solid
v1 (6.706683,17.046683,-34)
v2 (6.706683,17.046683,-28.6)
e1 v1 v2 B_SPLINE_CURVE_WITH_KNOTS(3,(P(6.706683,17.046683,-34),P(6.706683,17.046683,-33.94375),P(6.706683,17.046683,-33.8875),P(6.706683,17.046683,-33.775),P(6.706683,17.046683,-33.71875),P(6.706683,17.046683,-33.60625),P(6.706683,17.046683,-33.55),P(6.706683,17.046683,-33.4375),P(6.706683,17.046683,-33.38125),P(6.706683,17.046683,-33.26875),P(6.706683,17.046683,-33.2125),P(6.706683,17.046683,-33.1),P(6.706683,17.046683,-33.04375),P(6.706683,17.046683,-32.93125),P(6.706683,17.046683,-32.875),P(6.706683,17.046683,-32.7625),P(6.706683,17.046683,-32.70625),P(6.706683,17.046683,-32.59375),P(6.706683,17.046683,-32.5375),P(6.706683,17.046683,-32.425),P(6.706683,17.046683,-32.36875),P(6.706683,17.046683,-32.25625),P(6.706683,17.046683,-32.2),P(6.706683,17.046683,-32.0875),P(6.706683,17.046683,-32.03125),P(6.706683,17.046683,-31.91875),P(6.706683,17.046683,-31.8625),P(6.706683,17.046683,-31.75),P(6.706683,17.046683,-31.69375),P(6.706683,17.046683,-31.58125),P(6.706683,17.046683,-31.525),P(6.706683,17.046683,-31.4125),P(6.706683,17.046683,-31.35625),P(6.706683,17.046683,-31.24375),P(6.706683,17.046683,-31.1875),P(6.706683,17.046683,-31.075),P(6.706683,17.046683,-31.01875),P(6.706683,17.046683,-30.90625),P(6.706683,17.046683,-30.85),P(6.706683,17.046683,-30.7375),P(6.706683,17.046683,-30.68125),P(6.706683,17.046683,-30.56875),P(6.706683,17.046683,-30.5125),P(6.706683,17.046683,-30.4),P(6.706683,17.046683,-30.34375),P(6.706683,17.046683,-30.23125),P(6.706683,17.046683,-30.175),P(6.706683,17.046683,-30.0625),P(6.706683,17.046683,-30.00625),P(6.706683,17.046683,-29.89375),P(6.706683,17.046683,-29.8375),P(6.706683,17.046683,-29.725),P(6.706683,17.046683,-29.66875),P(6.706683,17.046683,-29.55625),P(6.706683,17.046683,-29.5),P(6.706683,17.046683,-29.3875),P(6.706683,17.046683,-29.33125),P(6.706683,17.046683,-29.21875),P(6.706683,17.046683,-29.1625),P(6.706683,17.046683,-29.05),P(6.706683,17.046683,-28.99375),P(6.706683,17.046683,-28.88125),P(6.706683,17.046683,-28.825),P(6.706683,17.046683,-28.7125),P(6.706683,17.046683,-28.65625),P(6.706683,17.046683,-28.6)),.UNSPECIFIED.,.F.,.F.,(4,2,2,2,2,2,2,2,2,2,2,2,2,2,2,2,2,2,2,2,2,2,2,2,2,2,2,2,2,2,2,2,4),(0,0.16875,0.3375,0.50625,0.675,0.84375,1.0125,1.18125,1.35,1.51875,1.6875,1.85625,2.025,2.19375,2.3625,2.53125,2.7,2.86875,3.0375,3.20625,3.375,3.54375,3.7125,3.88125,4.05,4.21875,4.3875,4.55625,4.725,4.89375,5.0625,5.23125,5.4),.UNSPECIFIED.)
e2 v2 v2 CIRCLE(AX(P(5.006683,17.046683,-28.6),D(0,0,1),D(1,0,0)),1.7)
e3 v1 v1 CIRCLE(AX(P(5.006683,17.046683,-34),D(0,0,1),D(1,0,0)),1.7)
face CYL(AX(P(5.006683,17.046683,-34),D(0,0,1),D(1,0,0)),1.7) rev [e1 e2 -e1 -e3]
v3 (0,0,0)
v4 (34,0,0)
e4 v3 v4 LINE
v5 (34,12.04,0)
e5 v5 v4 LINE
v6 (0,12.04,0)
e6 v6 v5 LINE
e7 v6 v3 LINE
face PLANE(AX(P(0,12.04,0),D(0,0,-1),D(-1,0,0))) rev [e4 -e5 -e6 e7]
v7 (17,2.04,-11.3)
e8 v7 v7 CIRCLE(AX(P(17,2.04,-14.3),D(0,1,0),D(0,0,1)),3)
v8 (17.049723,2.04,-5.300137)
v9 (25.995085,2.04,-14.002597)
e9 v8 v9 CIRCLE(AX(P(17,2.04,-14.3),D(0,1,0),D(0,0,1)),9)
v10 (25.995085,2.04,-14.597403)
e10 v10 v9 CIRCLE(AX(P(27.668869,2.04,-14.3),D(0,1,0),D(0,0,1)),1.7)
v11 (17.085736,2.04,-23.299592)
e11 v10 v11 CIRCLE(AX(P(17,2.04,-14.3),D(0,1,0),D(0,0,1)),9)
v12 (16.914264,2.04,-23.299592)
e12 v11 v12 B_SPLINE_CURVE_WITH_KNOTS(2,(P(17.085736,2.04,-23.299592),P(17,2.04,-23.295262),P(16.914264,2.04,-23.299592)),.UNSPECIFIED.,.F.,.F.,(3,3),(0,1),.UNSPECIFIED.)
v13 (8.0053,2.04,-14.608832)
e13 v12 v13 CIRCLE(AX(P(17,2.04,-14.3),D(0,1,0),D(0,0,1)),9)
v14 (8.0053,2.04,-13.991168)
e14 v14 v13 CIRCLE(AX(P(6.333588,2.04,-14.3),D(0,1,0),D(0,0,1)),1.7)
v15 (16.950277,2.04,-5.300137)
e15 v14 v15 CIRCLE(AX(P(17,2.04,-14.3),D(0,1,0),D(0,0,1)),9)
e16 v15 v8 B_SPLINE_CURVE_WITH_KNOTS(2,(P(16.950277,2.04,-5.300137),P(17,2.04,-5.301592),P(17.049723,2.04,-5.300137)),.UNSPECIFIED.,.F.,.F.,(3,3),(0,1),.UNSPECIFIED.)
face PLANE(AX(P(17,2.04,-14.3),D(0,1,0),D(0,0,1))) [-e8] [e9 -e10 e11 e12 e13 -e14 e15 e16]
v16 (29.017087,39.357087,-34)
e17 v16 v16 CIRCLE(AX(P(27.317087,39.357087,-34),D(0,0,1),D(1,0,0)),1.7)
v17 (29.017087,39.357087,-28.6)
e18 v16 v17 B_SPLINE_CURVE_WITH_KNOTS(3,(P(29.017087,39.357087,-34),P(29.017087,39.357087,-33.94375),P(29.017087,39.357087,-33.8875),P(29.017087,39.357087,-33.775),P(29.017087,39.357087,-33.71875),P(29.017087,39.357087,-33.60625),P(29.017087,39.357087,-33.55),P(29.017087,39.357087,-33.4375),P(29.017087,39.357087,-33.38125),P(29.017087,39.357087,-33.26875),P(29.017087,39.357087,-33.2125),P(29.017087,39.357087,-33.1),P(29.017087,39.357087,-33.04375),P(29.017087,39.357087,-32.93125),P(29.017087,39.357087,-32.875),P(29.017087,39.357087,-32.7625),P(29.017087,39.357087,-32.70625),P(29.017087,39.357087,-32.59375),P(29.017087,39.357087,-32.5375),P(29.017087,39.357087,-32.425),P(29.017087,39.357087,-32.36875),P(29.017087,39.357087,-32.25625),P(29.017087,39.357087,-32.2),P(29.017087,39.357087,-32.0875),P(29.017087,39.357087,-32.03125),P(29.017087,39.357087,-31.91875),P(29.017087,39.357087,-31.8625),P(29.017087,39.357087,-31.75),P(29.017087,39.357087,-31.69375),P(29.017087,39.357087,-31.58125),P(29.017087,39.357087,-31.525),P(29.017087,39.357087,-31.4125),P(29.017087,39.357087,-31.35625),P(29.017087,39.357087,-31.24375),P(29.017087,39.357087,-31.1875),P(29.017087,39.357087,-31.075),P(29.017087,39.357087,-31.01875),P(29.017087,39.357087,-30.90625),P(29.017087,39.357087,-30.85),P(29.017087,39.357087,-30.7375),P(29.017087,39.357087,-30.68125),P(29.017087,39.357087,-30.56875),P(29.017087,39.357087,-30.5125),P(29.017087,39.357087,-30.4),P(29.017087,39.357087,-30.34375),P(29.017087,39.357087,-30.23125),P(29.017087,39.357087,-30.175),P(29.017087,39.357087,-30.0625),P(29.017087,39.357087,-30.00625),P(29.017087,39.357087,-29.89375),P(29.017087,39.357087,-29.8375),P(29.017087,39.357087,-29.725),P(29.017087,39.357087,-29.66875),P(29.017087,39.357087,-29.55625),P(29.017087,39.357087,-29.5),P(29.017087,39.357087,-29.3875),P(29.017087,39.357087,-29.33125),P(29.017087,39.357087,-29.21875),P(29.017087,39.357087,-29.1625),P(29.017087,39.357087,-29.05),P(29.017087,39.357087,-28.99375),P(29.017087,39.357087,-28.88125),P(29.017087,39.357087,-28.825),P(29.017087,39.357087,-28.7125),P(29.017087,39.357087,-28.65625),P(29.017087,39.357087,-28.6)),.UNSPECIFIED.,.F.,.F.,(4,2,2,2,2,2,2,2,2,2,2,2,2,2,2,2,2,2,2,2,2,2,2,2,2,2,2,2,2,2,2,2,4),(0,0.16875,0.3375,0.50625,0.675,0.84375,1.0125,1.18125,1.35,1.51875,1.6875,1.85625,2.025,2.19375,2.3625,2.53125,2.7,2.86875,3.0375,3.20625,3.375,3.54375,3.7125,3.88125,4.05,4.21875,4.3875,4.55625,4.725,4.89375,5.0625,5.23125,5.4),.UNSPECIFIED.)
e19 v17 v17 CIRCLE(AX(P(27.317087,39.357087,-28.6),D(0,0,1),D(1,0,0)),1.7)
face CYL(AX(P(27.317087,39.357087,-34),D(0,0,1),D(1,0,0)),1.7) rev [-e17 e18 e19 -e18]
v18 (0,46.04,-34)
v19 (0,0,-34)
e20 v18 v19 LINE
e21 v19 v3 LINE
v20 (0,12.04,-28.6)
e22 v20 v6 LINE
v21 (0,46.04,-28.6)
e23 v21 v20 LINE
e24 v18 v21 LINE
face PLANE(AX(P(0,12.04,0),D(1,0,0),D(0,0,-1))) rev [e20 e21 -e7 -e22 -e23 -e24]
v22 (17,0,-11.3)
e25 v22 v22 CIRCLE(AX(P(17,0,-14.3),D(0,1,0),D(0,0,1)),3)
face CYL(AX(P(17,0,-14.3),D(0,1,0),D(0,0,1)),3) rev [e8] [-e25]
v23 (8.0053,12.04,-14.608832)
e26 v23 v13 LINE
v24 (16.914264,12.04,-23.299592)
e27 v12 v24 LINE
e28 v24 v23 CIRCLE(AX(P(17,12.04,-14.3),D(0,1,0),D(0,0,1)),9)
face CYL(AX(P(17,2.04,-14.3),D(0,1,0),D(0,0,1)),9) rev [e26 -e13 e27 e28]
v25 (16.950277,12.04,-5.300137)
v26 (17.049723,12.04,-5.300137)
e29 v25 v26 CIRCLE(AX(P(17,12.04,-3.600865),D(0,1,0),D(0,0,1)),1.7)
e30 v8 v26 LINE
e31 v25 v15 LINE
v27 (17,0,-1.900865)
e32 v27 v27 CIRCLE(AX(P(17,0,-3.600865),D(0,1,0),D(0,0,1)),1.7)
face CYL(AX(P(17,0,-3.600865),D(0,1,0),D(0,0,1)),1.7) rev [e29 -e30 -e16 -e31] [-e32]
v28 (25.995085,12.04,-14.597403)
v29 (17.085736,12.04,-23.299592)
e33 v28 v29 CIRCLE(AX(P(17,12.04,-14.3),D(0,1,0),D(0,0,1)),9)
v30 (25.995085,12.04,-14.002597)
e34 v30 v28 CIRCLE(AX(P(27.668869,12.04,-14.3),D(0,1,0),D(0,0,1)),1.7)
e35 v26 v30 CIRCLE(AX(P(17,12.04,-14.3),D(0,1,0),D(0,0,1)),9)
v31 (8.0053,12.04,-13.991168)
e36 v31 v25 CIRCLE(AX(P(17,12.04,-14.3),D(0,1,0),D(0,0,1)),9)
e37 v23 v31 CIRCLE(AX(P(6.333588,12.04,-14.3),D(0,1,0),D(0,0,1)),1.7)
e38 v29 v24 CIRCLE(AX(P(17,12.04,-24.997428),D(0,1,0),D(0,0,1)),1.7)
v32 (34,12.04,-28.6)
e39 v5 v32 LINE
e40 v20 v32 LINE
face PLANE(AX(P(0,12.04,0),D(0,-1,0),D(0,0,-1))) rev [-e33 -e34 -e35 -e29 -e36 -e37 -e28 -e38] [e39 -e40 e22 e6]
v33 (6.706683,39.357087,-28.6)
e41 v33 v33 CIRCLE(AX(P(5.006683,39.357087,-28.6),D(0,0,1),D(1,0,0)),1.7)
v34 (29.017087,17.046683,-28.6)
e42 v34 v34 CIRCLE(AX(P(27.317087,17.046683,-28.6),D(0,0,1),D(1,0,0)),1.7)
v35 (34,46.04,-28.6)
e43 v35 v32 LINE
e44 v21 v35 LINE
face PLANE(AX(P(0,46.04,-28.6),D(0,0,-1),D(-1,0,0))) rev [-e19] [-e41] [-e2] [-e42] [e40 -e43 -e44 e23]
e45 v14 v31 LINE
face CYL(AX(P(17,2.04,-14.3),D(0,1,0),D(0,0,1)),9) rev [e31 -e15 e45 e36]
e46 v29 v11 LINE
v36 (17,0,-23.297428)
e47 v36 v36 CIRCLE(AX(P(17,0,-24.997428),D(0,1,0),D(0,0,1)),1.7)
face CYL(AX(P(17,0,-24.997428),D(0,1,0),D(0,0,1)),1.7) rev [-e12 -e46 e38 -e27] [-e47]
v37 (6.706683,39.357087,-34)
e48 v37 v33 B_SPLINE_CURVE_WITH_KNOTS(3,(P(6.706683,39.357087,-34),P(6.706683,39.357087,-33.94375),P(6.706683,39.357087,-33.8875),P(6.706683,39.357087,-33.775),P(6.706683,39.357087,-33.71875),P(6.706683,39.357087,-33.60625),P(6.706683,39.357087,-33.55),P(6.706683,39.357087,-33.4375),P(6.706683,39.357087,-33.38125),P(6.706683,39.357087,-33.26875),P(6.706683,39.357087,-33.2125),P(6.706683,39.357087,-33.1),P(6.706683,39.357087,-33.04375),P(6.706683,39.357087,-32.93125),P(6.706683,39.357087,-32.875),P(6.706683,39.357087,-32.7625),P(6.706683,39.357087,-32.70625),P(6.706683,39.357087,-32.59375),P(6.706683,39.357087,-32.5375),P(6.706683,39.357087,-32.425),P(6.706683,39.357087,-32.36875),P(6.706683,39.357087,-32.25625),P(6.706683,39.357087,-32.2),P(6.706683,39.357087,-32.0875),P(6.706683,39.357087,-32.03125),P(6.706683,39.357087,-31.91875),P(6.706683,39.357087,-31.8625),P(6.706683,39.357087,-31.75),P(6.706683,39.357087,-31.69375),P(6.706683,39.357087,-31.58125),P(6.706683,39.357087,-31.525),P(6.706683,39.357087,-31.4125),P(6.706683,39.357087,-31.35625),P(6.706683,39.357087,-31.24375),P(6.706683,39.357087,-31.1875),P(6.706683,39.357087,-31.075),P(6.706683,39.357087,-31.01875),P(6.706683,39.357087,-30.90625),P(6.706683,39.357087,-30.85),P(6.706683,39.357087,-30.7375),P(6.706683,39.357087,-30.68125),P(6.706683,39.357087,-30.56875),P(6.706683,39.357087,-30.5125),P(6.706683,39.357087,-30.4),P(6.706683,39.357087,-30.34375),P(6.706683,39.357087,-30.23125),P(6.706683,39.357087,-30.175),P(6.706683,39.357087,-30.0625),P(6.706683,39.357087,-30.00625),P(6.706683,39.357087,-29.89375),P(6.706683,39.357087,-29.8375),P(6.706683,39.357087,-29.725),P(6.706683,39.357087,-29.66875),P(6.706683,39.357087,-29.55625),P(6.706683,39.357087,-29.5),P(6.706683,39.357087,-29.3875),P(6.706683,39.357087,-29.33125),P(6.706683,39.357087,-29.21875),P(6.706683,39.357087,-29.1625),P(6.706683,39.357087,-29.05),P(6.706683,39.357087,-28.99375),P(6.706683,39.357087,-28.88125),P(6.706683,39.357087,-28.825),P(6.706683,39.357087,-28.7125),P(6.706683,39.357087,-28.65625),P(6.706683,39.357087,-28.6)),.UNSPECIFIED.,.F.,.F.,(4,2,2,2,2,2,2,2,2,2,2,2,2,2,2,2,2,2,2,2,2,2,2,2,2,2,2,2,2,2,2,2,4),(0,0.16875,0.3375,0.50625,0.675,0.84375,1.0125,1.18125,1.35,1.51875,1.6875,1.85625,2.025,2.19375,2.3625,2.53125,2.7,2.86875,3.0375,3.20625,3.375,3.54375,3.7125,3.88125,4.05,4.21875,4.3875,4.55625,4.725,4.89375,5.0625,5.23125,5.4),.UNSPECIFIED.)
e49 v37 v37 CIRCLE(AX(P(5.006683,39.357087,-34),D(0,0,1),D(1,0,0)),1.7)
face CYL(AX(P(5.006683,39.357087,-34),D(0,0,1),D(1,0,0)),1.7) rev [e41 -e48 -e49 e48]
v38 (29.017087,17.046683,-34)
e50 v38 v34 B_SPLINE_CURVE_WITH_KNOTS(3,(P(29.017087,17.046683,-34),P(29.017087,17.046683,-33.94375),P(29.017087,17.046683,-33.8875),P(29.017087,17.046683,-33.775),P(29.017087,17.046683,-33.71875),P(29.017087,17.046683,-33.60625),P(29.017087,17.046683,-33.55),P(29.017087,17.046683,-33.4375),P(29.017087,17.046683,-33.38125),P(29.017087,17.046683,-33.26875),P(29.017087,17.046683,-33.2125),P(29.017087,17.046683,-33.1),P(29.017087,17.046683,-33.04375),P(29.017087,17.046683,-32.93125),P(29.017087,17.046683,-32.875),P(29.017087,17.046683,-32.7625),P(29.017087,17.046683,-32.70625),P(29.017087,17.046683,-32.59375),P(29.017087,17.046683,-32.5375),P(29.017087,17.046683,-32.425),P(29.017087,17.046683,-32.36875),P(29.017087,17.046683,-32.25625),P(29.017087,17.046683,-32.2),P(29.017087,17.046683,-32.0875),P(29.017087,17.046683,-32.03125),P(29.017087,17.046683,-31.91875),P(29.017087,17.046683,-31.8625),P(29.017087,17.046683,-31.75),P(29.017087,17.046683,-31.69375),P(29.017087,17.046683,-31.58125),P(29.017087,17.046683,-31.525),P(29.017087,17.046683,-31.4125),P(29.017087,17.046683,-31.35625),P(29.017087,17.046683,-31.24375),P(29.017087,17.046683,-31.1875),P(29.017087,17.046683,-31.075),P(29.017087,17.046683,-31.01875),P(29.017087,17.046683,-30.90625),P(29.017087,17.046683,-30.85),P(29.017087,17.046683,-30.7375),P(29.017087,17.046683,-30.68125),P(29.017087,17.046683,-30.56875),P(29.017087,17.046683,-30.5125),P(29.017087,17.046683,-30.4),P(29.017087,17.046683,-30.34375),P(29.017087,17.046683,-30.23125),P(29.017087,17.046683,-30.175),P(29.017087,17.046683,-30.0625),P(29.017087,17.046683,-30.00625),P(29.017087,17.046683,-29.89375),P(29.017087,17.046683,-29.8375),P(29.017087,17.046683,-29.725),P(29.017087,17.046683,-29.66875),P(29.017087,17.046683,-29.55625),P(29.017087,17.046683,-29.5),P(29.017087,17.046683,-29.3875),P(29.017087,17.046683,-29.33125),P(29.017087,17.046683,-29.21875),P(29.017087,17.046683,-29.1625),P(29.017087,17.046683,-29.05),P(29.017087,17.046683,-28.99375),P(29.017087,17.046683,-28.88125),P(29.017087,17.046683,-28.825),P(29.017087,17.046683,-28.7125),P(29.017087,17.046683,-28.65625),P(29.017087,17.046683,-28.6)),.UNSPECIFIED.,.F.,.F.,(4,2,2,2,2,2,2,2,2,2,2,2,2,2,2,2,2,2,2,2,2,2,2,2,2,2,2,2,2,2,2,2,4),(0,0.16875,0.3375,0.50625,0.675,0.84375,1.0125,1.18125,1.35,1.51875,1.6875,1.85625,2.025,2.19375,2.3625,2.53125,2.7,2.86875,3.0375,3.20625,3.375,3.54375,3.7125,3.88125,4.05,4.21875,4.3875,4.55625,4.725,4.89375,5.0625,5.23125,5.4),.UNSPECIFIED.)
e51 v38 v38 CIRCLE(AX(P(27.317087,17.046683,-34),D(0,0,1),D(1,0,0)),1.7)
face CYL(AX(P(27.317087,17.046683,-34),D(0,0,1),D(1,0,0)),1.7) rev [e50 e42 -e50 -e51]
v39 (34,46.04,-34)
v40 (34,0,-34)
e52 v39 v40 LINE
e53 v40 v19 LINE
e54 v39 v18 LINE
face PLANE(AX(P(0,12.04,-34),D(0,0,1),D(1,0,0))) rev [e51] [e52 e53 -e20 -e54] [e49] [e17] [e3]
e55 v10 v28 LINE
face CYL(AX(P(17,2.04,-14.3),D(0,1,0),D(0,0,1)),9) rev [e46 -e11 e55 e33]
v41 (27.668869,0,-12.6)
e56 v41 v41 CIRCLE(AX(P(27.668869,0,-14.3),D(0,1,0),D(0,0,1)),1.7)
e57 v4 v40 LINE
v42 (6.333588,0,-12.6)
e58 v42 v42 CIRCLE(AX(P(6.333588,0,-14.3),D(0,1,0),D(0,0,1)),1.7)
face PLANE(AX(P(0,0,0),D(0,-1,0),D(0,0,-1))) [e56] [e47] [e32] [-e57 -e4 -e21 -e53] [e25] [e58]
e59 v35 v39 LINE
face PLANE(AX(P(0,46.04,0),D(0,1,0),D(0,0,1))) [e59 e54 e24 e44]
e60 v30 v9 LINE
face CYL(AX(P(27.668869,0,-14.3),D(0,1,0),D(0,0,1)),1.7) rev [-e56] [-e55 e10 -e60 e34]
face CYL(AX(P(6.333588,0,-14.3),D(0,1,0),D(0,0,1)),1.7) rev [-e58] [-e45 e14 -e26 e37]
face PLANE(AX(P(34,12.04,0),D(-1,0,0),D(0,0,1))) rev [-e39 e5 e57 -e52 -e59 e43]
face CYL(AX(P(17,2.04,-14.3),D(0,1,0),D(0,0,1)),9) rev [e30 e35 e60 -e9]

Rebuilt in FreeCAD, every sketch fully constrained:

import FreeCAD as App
import Part
import Sketcher


def add_polygon(sketch, points):
    """Adds a closed chain of lines whose ends are joined by coincident constraints."""
    first, n = sketch.GeometryCount, len(points)
    for a, b in zip(points, points[1:] + points[:1]):
        sketch.addGeometry(Part.LineSegment(App.Vector(*a, 0), App.Vector(*b, 0)), False)
    for i in range(n):
        sketch.addConstraint(Sketcher.Constraint("Coincident", first + i, 2, first + (i + 1) % n, 1))

doc = App.newDocument("Part")
params = doc.addObject("Spreadsheet::Sheet", "Params")
for row, (alias, value) in enumerate([
    ("sketch1_width", "34 mm"),
    ("pad1_length", "12.04 mm"),
    ("sketch2_width", "34 mm"),
    ("sketch2_height", "5.4 mm"),
    ("pad2_length", "34 mm"),
    ("sketch3_diameter", "18 mm"),
    ("pocket1_length", "10 mm"),
    ("sketch4_diameter", "3.4 mm"),
    ("sketch5_diameter", "6 mm"),
    ("sketch6_diameter", "3.4 mm"),
], start=1):
    params.set(f"A{row}", alias)
    params.set(f"B{row}", "=" + value)
    params.setAlias(f"B{row}", alias)

body = doc.addObject("PartDesign::Body", "Body")

# Sketch on XZ plane
sketch1 = body.newObject("Sketcher::SketchObject", "Sketch")
sketch1.AttachmentSupport = (doc.getObject("XZ_Plane"), [""])
sketch1.MapMode = "FlatFace"
add_polygon(sketch1, [(0, -34), (0, 0), (34, 0), (34, -34)])  # lines 0-3
sketch1.addConstraint([
    Sketcher.Constraint("Vertical", 0),
    Sketcher.Constraint("Horizontal", 1),
    Sketcher.Constraint("Vertical", 2),
    Sketcher.Constraint("Horizontal", 3),
    Sketcher.Constraint("Coincident", 0, 2, -1, 1),
    Sketcher.Constraint("Equal", 3, 0),
    Sketcher.Constraint("DistanceX", 1, 1, 1, 2, 34.0),
])
sketch1.setExpression("Constraints[10]", "Params.sketch1_width")
pad1 = body.newObject("PartDesign::Pad", "Pad")
pad1.Profile = sketch1
pad1.setExpression("Length", "Params.pad1_length")
pad1.Reversed = True

# Sketch on XZ plane
sketch2 = body.newObject("Sketcher::SketchObject", "Sketch001")
sketch2.AttachmentSupport = (doc.getObject("XZ_Plane"), [""])
sketch2.MapMode = "FlatFace"
sketch2.AttachmentOffset = App.Placement(App.Vector(0, 0, -12.04), App.Rotation())
add_polygon(sketch2, [(0, -34), (0, -28.6), (34, -28.6), (34, -34)])  # lines 0-3
sketch2.addConstraint([
    Sketcher.Constraint("Vertical", 0),
    Sketcher.Constraint("Horizontal", 1),
    Sketcher.Constraint("Vertical", 2),
    Sketcher.Constraint("Horizontal", 3),
    Sketcher.Constraint("PointOnObject", 0, 2, -2),
    Sketcher.Constraint("DistanceX", 1, 1, 1, 2, 34.0),
    Sketcher.Constraint("DistanceY", 0, 1, 0, 2, 5.4),
    Sketcher.Constraint("DistanceY", 2, 2, -1, 1, 34.0),
])
sketch2.setExpression("Constraints[9]", "Params.sketch2_width")
sketch2.setExpression("Constraints[10]", "Params.sketch2_height")
pad2 = body.newObject("PartDesign::Pad", "Pad001")
pad2.Profile = sketch2
pad2.setExpression("Length", "Params.pad2_length")
pad2.Reversed = True

# Sketch on XZ plane
sketch3 = body.newObject("Sketcher::SketchObject", "Sketch002")
sketch3.AttachmentSupport = (doc.getObject("XZ_Plane"), [""])
sketch3.MapMode = "FlatFace"
sketch3.AttachmentOffset = App.Placement(App.Vector(0, 0, -12.04), App.Rotation())
sketch3.addGeometry(Part.Circle(App.Vector(17, -14.3, 0), App.Vector(0, 0, 1), 9), False)
sketch3.addConstraint([
    Sketcher.Constraint("Diameter", 0, 18.0),
    Sketcher.Constraint("DistanceX", -1, 1, 0, 3, 17.0),
    Sketcher.Constraint("DistanceY", 0, 3, -1, 1, 14.3),
])
sketch3.setExpression("Constraints[0]", "Params.sketch3_diameter")
pocket1 = body.newObject("PartDesign::Pocket", "Pocket")
pocket1.Profile = sketch3
pocket1.setExpression("Length", "Params.pocket1_length")
pocket1.Reversed = True

# Sketch on XZ plane
sketch4 = body.newObject("Sketcher::SketchObject", "Sketch003")
sketch4.AttachmentSupport = (doc.getObject("XZ_Plane"), [""])
sketch4.MapMode = "FlatFace"
sketch4.AttachmentOffset = App.Placement(App.Vector(0, 0, -12.04), App.Rotation())
sketch4.addGeometry([
    Part.Circle(App.Vector(6.333588, -14.3, 0), App.Vector(0, 0, 1), 1.7),
    Part.Circle(App.Vector(27.668869, -14.3, 0), App.Vector(0, 0, 1), 1.7),
    Part.Circle(App.Vector(17, -3.600865, 0), App.Vector(0, 0, 1), 1.7),
    Part.Circle(App.Vector(17, -24.997428, 0), App.Vector(0, 0, 1), 1.7),
], False)
sketch4.addConstraint([
    Sketcher.Constraint("Equal", 0, 1),
    Sketcher.Constraint("Equal", 1, 2),
    Sketcher.Constraint("Equal", 2, 3),
    Sketcher.Constraint("Horizontal", 0, 3, 1, 3),
    Sketcher.Constraint("Vertical", 2, 3, 3, 3),
    Sketcher.Constraint("Diameter", 0, 3.4),
    Sketcher.Constraint("DistanceX", -1, 1, 2, 3, 17.0),
    Sketcher.Constraint("DistanceY", 0, 3, -1, 1, 14.3),
    Sketcher.Constraint("DistanceX", -1, 1, 1, 3, 27.668869),
    Sketcher.Constraint("DistanceY", 3, 3, -1, 1, 24.997428),
    Sketcher.Constraint("DistanceX", 0, 3, 1, 3, 21.335281),
    Sketcher.Constraint("DistanceY", 2, 3, -1, 1, 3.600865),
])
sketch4.setExpression("Constraints[5]", "Params.sketch4_diameter")
pocket2 = body.newObject("PartDesign::Pocket", "Pocket001")
pocket2.Profile = sketch4
pocket2.Type = "ThroughAll"
pocket2.Reversed = True

# Sketch on XZ plane
sketch5 = body.newObject("Sketcher::SketchObject", "Sketch004")
sketch5.AttachmentSupport = (doc.getObject("XZ_Plane"), [""])
sketch5.MapMode = "FlatFace"
sketch5.AttachmentOffset = App.Placement(App.Vector(0, 0, -2.04), App.Rotation())
sketch5.addGeometry(Part.Circle(App.Vector(17, -14.3, 0), App.Vector(0, 0, 1), 3), False)
sketch5.addConstraint([
    Sketcher.Constraint("Diameter", 0, 6.0),
    Sketcher.Constraint("DistanceX", -1, 1, 0, 3, 17.0),
    Sketcher.Constraint("DistanceY", 0, 3, -1, 1, 14.3),
])
sketch5.setExpression("Constraints[0]", "Params.sketch5_diameter")
pocket3 = body.newObject("PartDesign::Pocket", "Pocket002")
pocket3.Profile = sketch5
pocket3.Type = "ThroughAll"
pocket3.Reversed = True

# Sketch on XY plane
sketch6 = body.newObject("Sketcher::SketchObject", "Sketch005")
sketch6.AttachmentSupport = (doc.getObject("XY_Plane"), [""])
sketch6.MapMode = "FlatFace"
sketch6.AttachmentOffset = App.Placement(App.Vector(0, 0, -28.6), App.Rotation())
sketch6.addGeometry([
    Part.Circle(App.Vector(5.006683, 39.357087, 0), App.Vector(0, 0, 1), 1.7),
    Part.Circle(App.Vector(27.317087, 39.357087, 0), App.Vector(0, 0, 1), 1.7),
    Part.Circle(App.Vector(5.006683, 17.046683, 0), App.Vector(0, 0, 1), 1.7),
    Part.Circle(App.Vector(27.317087, 17.046683, 0), App.Vector(0, 0, 1), 1.7),
], False)
sketch6.addConstraint([
    Sketcher.Constraint("Equal", 0, 1),
    Sketcher.Constraint("Equal", 1, 2),
    Sketcher.Constraint("Equal", 2, 3),
    Sketcher.Constraint("Horizontal", 0, 3, 1, 3),
    Sketcher.Constraint("Horizontal", 2, 3, 3, 3),
    Sketcher.Constraint("Vertical", 0, 3, 2, 3),
    Sketcher.Constraint("Vertical", 1, 3, 3, 3),
    Sketcher.Constraint("Diameter", 0, 3.4),
    Sketcher.Constraint("DistanceX", -1, 1, 0, 3, 5.006683),
    Sketcher.Constraint("DistanceY", -1, 1, 0, 3, 39.357087),
    Sketcher.Constraint("DistanceX", -1, 1, 1, 3, 27.317087),
    Sketcher.Constraint("DistanceY", -1, 1, 2, 3, 17.046683),
])
sketch6.setExpression("Constraints[7]", "Params.sketch6_diameter")
pocket4 = body.newObject("PartDesign::Pocket", "Pocket003")
pocket4.Profile = sketch6
pocket4.Type = "ThroughAll"

doc.recompute()
